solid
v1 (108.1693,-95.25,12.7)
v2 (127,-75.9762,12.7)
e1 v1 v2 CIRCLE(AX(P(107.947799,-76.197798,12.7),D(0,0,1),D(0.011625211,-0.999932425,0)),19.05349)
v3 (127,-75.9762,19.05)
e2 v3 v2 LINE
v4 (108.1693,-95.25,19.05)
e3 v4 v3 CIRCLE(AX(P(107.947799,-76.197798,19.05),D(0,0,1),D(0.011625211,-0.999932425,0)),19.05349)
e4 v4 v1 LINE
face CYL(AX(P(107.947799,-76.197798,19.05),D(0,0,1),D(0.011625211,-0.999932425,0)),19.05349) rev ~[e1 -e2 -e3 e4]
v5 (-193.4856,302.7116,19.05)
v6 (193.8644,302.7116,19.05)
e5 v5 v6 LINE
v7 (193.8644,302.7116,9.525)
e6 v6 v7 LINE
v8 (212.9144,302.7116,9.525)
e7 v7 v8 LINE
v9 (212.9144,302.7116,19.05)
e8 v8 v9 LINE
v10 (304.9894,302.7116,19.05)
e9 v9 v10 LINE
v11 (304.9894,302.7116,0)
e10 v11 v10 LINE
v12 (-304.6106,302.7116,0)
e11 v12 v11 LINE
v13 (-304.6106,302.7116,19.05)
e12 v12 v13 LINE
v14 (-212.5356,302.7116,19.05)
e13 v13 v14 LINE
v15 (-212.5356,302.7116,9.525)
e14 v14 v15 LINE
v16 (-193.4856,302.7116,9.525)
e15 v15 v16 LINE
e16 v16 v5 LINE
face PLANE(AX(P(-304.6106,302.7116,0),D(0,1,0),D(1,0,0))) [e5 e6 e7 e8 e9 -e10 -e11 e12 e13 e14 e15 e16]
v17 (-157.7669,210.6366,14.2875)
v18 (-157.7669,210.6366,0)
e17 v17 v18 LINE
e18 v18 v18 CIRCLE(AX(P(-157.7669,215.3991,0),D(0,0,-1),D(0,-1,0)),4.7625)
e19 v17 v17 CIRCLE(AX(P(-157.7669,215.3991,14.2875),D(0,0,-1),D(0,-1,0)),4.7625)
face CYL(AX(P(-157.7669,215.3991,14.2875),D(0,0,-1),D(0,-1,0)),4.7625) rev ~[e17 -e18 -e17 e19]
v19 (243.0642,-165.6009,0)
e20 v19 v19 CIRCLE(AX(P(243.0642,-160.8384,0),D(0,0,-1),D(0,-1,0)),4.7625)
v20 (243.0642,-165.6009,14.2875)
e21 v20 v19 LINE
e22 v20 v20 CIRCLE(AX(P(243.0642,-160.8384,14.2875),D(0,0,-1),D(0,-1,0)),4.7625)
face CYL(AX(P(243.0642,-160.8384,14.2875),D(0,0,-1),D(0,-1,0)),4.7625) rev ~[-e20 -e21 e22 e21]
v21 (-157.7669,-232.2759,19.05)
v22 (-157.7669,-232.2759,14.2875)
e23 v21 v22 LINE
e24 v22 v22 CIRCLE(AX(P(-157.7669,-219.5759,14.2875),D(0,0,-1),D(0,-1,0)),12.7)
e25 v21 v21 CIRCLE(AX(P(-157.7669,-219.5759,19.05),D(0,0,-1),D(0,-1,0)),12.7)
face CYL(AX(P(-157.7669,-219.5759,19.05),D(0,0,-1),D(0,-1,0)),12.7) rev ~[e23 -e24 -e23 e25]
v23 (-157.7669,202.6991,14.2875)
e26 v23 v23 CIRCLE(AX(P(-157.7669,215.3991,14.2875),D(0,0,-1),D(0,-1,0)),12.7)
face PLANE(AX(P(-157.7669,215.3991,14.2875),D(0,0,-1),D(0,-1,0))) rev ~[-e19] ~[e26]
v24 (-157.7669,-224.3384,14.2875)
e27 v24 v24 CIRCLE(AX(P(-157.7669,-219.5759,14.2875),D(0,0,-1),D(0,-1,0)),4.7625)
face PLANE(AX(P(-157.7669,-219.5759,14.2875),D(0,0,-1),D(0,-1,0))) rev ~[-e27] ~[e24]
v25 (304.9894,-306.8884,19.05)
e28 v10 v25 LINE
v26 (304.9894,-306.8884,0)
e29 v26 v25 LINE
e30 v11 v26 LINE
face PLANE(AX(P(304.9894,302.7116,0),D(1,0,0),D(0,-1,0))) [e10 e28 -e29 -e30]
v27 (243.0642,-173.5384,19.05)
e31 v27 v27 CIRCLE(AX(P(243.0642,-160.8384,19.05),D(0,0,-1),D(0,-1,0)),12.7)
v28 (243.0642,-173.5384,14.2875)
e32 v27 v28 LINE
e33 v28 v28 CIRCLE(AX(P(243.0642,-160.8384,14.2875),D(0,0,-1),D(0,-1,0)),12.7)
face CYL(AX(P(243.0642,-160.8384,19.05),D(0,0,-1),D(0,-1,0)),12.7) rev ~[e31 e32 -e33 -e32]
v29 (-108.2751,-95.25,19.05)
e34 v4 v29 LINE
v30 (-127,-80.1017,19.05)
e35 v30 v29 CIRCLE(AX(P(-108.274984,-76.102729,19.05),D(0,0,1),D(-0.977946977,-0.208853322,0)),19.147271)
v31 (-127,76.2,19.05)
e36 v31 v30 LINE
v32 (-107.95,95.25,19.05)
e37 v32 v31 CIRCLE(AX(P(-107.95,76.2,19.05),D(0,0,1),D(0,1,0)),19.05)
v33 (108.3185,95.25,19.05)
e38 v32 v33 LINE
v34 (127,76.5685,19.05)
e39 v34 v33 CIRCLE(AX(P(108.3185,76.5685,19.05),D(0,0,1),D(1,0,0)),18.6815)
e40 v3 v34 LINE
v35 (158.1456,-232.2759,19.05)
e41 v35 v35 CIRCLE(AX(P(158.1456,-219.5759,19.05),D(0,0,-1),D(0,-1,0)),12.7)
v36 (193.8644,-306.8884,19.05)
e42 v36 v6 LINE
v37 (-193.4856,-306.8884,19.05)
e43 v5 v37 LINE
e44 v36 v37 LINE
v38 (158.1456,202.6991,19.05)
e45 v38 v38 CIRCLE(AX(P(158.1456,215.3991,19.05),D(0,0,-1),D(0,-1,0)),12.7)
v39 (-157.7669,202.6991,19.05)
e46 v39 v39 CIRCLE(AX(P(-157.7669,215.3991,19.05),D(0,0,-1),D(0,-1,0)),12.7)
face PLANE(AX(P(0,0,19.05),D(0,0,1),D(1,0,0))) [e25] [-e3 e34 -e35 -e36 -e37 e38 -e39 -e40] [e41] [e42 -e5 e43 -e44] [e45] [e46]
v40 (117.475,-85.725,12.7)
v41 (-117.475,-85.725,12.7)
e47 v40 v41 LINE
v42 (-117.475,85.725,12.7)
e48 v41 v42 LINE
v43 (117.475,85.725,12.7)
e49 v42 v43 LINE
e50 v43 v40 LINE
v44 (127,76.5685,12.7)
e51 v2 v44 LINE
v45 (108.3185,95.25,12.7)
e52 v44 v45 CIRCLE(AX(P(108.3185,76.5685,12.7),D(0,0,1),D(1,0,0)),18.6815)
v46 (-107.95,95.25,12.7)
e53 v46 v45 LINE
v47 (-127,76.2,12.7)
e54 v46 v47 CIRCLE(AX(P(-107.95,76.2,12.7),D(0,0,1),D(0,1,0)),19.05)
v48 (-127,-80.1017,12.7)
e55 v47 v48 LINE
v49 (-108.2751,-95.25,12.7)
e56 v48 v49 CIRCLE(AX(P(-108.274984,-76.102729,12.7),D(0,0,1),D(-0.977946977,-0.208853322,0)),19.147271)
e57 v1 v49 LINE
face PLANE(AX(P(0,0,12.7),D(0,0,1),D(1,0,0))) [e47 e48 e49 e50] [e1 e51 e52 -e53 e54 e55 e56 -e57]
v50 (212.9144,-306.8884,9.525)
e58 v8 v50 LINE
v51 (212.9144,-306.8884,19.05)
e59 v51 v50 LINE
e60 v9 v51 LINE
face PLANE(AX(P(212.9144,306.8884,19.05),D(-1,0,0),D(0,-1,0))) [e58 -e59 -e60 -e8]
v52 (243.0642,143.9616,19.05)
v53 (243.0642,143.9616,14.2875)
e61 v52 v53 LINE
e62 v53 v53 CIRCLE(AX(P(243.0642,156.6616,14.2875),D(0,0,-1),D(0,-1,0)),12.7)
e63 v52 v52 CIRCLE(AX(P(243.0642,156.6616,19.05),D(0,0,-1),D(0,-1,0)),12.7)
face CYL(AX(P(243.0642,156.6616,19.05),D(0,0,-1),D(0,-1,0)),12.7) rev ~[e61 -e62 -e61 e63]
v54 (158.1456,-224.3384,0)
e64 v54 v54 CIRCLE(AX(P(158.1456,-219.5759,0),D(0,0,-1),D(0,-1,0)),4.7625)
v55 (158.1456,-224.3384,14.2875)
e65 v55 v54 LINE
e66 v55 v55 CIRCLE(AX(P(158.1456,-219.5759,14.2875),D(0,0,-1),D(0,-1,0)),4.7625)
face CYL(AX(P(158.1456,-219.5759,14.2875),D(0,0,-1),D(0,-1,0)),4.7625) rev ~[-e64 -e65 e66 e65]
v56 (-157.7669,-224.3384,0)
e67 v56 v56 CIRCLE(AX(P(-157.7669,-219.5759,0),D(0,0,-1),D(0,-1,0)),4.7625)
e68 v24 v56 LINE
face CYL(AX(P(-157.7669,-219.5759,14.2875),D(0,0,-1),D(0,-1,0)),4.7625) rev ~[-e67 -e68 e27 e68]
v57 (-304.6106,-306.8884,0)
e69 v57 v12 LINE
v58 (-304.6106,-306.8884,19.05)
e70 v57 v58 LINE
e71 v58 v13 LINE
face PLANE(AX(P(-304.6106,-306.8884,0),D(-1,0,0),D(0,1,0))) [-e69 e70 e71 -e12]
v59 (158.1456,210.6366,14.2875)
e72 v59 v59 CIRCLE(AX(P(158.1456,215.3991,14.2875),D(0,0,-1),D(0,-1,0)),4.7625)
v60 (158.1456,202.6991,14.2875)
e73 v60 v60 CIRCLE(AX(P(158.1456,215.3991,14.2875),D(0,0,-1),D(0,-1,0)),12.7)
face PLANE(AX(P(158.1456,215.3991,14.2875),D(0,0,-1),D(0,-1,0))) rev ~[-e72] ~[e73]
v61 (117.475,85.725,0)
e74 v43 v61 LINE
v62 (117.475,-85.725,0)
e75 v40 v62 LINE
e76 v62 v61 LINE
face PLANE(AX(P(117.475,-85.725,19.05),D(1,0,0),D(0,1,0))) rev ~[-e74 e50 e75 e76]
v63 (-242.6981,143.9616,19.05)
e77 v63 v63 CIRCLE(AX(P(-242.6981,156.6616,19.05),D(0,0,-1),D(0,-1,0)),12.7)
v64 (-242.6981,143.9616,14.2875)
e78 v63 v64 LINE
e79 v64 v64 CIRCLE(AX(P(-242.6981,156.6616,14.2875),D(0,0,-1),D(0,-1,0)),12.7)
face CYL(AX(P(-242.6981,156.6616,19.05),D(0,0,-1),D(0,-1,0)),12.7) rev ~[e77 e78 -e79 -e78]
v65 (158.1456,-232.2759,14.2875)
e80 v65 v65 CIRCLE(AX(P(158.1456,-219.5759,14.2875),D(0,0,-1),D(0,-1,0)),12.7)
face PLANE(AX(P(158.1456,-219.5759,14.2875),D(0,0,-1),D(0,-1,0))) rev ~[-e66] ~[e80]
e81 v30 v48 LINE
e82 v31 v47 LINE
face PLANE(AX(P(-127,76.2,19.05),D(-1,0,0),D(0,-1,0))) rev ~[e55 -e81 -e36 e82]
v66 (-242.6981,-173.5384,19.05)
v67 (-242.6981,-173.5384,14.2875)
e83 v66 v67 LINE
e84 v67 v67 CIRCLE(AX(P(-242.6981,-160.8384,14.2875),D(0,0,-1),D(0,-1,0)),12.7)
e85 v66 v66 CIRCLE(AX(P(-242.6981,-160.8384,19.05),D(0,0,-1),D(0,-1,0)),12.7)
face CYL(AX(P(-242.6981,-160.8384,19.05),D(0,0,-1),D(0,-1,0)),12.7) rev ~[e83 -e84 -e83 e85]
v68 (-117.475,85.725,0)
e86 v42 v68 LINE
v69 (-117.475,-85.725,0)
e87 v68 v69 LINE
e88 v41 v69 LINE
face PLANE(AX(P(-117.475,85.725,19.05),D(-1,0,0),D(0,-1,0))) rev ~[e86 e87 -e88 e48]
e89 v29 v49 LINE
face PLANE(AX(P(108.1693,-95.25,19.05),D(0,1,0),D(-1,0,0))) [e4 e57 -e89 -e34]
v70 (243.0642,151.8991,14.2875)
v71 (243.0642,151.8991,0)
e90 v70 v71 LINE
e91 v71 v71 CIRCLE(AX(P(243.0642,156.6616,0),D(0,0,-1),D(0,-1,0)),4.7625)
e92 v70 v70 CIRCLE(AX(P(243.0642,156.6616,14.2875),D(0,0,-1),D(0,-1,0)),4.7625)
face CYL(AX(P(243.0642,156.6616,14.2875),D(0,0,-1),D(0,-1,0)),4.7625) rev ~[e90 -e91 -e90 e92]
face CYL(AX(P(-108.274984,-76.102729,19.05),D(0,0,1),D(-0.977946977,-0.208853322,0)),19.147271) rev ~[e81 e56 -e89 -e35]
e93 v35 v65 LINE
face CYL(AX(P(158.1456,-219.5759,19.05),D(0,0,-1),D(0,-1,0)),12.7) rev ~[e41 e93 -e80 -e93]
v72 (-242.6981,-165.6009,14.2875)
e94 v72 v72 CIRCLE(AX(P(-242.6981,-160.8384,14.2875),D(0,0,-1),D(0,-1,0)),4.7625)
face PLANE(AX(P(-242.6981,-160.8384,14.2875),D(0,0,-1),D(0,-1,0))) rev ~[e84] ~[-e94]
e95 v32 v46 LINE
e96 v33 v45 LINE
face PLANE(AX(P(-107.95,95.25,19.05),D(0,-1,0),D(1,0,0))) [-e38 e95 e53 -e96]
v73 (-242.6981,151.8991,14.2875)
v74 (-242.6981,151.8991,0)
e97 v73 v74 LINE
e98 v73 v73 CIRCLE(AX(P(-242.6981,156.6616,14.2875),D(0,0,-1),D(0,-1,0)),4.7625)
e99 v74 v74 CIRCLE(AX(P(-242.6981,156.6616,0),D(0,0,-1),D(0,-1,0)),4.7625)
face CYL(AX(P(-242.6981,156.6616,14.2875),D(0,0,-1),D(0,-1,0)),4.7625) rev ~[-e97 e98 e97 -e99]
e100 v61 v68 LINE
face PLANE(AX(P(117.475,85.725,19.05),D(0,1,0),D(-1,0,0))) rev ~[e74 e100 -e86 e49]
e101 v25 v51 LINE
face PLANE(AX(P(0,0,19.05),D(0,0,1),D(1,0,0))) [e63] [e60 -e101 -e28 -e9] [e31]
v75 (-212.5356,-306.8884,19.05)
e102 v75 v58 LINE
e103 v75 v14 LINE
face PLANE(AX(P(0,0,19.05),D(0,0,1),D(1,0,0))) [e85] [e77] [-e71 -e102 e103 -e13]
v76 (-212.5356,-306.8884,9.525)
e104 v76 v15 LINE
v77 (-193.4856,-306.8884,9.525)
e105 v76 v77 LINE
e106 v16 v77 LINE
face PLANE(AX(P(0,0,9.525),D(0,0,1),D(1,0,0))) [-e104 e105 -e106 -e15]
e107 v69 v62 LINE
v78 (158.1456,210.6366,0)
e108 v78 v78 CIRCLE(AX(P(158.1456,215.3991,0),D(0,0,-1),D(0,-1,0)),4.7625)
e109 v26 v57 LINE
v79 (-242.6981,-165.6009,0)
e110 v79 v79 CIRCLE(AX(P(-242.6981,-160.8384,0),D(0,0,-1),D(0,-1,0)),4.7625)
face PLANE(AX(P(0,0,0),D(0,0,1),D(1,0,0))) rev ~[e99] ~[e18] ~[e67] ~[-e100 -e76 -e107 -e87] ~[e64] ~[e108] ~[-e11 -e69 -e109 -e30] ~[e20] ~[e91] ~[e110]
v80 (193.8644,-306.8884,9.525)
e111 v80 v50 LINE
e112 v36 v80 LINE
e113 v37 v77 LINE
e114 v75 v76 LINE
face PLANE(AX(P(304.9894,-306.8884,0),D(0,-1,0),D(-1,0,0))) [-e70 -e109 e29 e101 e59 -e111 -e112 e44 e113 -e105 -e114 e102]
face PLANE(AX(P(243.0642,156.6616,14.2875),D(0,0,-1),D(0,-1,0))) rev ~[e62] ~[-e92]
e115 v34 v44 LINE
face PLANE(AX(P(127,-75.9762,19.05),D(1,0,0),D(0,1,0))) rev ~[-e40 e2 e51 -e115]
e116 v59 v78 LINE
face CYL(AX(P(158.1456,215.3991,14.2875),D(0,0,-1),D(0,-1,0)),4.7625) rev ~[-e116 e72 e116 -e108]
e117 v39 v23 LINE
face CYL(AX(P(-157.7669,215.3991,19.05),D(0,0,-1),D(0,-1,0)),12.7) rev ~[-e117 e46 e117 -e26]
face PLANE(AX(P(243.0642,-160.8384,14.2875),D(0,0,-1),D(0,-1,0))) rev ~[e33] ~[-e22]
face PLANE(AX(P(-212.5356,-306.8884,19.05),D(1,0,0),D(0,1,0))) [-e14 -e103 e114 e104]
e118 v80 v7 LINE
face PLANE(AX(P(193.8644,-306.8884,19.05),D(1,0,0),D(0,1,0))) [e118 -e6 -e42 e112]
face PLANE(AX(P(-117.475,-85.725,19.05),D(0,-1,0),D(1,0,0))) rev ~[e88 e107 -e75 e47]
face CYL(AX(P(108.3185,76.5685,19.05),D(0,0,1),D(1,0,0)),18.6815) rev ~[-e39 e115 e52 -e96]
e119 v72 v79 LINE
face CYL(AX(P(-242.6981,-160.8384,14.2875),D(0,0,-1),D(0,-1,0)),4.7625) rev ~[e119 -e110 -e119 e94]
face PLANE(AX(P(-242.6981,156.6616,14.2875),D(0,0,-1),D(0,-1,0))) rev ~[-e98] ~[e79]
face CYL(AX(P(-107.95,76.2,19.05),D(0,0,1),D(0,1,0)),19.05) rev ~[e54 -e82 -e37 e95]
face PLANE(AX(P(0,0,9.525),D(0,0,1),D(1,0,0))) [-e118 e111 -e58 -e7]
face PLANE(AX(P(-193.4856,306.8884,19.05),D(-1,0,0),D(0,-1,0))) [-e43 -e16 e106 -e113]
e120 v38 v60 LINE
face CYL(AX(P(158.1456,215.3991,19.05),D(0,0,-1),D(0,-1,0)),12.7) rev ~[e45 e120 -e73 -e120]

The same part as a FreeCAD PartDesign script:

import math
import FreeCAD as App
import Part
import Sketcher
from FreeCAD import Vector
Q = App.Units.Quantity

doc = App.newDocument("Part")
params = doc.addObject("Spreadsheet::Sheet", "Params")
for row, (alias, value) in enumerate([
    ("sketch1_width", "24 in"),
    ("pad1_length", "0.75 in"),
    ("sketch2_diameter", "0.375 in"),
    ("hole_diameter", "0.375 in"),
    ("hole_cbore_diameter", "1 in"),
    ("hole_cbore_depth", "0.1875 in"),
    ("sketch3_width", "9.25 in"),
    ("sketch3_height", "6.75 in"),
    ("pocket1_length", "0.75 in"),
    ("sketch4_radius", "0.75 in"),
    ("pocket2_length", "0.25 in"),
    ("sketch5_width", "0.75 in"),
    ("pocket3_length", "0.375 in"),
], start=1):
    params.set(f"A{row}", alias)
    params.set(f"B{row}", "=" + value)
    params.setAlias(f"B{row}", alias)

body = doc.addObject("PartDesign::Body", "Body")

sketch1 = body.newObject("Sketcher::SketchObject", "Sketch")
sketch1.AttachmentSupport = (doc.getObject("XY_Plane"), [""])
sketch1.MapMode = "FlatFace"
sketch1.addGeometry([
    Part.LineSegment(Vector(305, 303, 0), Vector(-305, 303, 0)),
    Part.LineSegment(Vector(-305, 303, 0), Vector(-305, -307, 0)),
    Part.LineSegment(Vector(-305, -307, 0), Vector(305, -307, 0)),
    Part.LineSegment(Vector(305, -307, 0), Vector(305, 303, 0)),
], False)
sketch1.addConstraint([
    Sketcher.Constraint("Coincident", 0, 2, 1, 1),
    Sketcher.Constraint("Coincident", 1, 2, 2, 1),
    Sketcher.Constraint("Coincident", 2, 2, 3, 1),
    Sketcher.Constraint("Coincident", 3, 2, 0, 1),
    Sketcher.Constraint("Horizontal", 0),
    Sketcher.Constraint("Vertical", 1),
    Sketcher.Constraint("Horizontal", 2),
    Sketcher.Constraint("Vertical", 3),
    Sketcher.Constraint("Equal", 2, 1),
    Sketcher.Constraint("DistanceX", 0, 2, 0, 1, Q("24 in")),
    Sketcher.Constraint("DistanceX", 0, 2, -1, 1, Q("304.6106 mm")),
    Sketcher.Constraint("DistanceY", -1, 1, 0, 2, Q("302.7116 mm")),
])
sketch1.setExpression("Constraints[9]", "Params.sketch1_width")
pad1 = body.newObject("PartDesign::Pad", "Pad")
pad1.Profile = sketch1
pad1.setExpression("Length", "Params.pad1_length")

sketch2 = body.newObject("Sketcher::SketchObject", "Sketch001")
sketch2.AttachmentSupport = (doc.getObject("XY_Plane"), [""])
sketch2.MapMode = "FlatFace"
sketch2.AttachmentOffset = App.Placement(Vector(0, 0, 0.75 * 25.4), App.Rotation())
sketch2.addGeometry([
    Part.Circle(Vector(-242.7, -160.8, 0), Vector(0, 0, 1), 4.8),
    Part.Circle(Vector(-242.7, 156.7, 0), Vector(0, 0, 1), 4.8),
    Part.Circle(Vector(-157.8, 215.4, 0), Vector(0, 0, 1), 4.8),
    Part.Circle(Vector(158.1, 215.4, 0), Vector(0, 0, 1), 4.8),
    Part.Circle(Vector(243.1, 156.7, 0), Vector(0, 0, 1), 4.8),
    Part.Circle(Vector(243.1, -160.8, 0), Vector(0, 0, 1), 4.8),
    Part.Circle(Vector(158.1, -219.6, 0), Vector(0, 0, 1), 4.8),
    Part.Circle(Vector(-157.8, -219.6, 0), Vector(0, 0, 1), 4.8),
], False)
sketch2.addConstraint([
    Sketcher.Constraint("Equal", 0, 1),
    Sketcher.Constraint("Equal", 1, 2),
    Sketcher.Constraint("Equal", 2, 3),
    Sketcher.Constraint("Equal", 3, 4),
    Sketcher.Constraint("Equal", 4, 5),
    Sketcher.Constraint("Equal", 5, 6),
    Sketcher.Constraint("Equal", 6, 7),
    Sketcher.Constraint("Horizontal", 2, 3, 3, 3),
    Sketcher.Constraint("Horizontal", 1, 3, 4, 3),
    Sketcher.Constraint("Horizontal", 0, 3, 5, 3),
    Sketcher.Constraint("Horizontal", 6, 3, 7, 3),
    Sketcher.Constraint("Vertical", 0, 3, 1, 3),
    Sketcher.Constraint("Vertical", 4, 3, 5, 3),
    Sketcher.Constraint("Vertical", 3, 3, 6, 3),
    Sketcher.Constraint("Vertical", 2, 3, 7, 3),
    Sketcher.Constraint("Diameter", 0, Q("0.375 in")),
    Sketcher.Constraint("DistanceY", 0, 3, 1, 3, Q("12.5 in")),
    Sketcher.Constraint("DistanceX", 1, 3, 2, 3, Q("3.343748 in")),
    Sketcher.Constraint("DistanceY", 1, 3, 2, 3, Q("2.3125 in")),
    Sketcher.Constraint("DistanceX", 2, 3, 3, 3, Q("12.4375 in")),
    Sketcher.Constraint("DistanceY", 6, 3, 5, 3, Q("2.3125 in")),
    Sketcher.Constraint("DistanceX", 2, 3, -1, 1, Q("6.2113 in")),
    Sketcher.Constraint("DistanceX", 1, 3, 4, 3, Q("19.1245 in")),
    Sketcher.Constraint("DistanceY", 0, 3, -1, 1, Q("160.8384 mm")),
])
sketch2.setExpression("Constraints[15]", "Params.sketch2_diameter")
doc.recompute()
hole = body.newObject("PartDesign::Hole", "Hole")
hole.Profile = sketch2
hole.ThreadType = "None"
hole.setExpression("Diameter", "Params.hole_diameter")
hole.DepthType = "ThroughAll"
hole.HoleCutType = "Counterbore"
hole.setExpression("HoleCutDiameter", "Params.hole_cbore_diameter")
hole.setExpression("HoleCutDepth", "Params.hole_cbore_depth")

sketch3 = body.newObject("Sketcher::SketchObject", "Sketch002")
sketch3.AttachmentSupport = (doc.getObject("XY_Plane"), [""])
sketch3.MapMode = "FlatFace"
sketch3.AttachmentOffset = App.Placement(Vector(0, 0, 0.75 * 25.4), App.Rotation())
sketch3.addGeometry([
    Part.LineSegment(Vector(-117, 86, 0), Vector(-117, -86, 0)),
    Part.LineSegment(Vector(-117, -86, 0), Vector(117, -86, 0)),
    Part.LineSegment(Vector(117, -86, 0), Vector(117, 86, 0)),
    Part.LineSegment(Vector(117, 86, 0), Vector(-117, 86, 0)),
], False)
sketch3.addConstraint([
    Sketcher.Constraint("Coincident", 0, 2, 1, 1),
    Sketcher.Constraint("Coincident", 1, 2, 2, 1),
    Sketcher.Constraint("Coincident", 2, 2, 3, 1),
    Sketcher.Constraint("Coincident", 3, 2, 0, 1),
    Sketcher.Constraint("Vertical", 0),
    Sketcher.Constraint("Horizontal", 1),
    Sketcher.Constraint("Vertical", 2),
    Sketcher.Constraint("Horizontal", 3),
    Sketcher.Constraint("Symmetric", 0, 2, 2, 2, -1, 1),
    Sketcher.Constraint("DistanceX", 1, 1, 1, 2, Q("9.25 in")),
    Sketcher.Constraint("DistanceY", 0, 2, 0, 1, Q("6.75 in")),
])
sketch3.setExpression("Constraints[9]", "Params.sketch3_width")
sketch3.setExpression("Constraints[10]", "Params.sketch3_height")
pocket1 = body.newObject("PartDesign::Pocket", "Pocket")
pocket1.Profile = sketch3
pocket1.setExpression("Length", "Params.pocket1_length")

sketch4 = body.newObject("Sketcher::SketchObject", "Sketch003")
sketch4.AttachmentSupport = (doc.getObject("XY_Plane"), [""])
sketch4.MapMode = "FlatFace"
sketch4.AttachmentOffset = App.Placement(Vector(0, 0, 0.75 * 25.4), App.Rotation())
sketch4.addGeometry([
    Part.LineSegment(Vector(108, 95, 0), Vector(-108, 95, 0)),
    Part.ArcOfCircle(Part.Circle(Vector(-108, 76, 0), Vector(0, 0, 1), 19), math.radians(90), math.radians(180)),
    Part.LineSegment(Vector(-127, 76, 0), Vector(-127, -80, 0)),
    Part.ArcOfCircle(Part.Circle(Vector(-108, -76, 0), Vector(0, 0, 1), 19), math.radians(-168), math.radians(-90)),
    Part.LineSegment(Vector(-108, -95, 0), Vector(108, -95, 0)),
    Part.ArcOfCircle(Part.Circle(Vector(108, -76, 0), Vector(0, 0, 1), 19), math.radians(-89), math.radians(1)),
    Part.LineSegment(Vector(127, -76, 0), Vector(127, 77, 0)),
    Part.ArcOfCircle(Part.Circle(Vector(108, 77, 0), Vector(0, 0, 1), 19), math.radians(0), math.radians(90)),
    Part.LineSegment(Vector(-117, 86, 0), Vector(117, 86, 0)),
    Part.LineSegment(Vector(117, 86, 0), Vector(117, -86, 0)),
    Part.LineSegment(Vector(117, -86, 0), Vector(-117, -86, 0)),
    Part.LineSegment(Vector(-117, -86, 0), Vector(-117, 86, 0)),
], False)
sketch4.addConstraint([
    Sketcher.Constraint("Tangent", 0, 2, 1, 1),
    Sketcher.Constraint("Tangent", 1, 2, 2, 1),
    Sketcher.Constraint("Coincident", 2, 2, 3, 1),
    Sketcher.Constraint("Tangent", 3, 2, 4, 1),
    Sketcher.Constraint("Coincident", 4, 2, 5, 1),
    Sketcher.Constraint("Coincident", 5, 2, 6, 1),
    Sketcher.Constraint("Tangent", 6, 2, 7, 1),
    Sketcher.Constraint("Tangent", 7, 2, 0, 1),
    Sketcher.Constraint("Coincident", 8, 2, 9, 1),
    Sketcher.Constraint("Coincident", 9, 2, 10, 1),
    Sketcher.Constraint("Coincident", 10, 2, 11, 1),
    Sketcher.Constraint("Coincident", 11, 2, 8, 1),
    Sketcher.Constraint("Horizontal", 0),
    Sketcher.Constraint("Vertical", 2),
    Sketcher.Constraint("Horizontal", 4),
    Sketcher.Constraint("Vertical", 6),
    Sketcher.Constraint("Horizontal", 8),
    Sketcher.Constraint("Vertical", 9),
    Sketcher.Constraint("Horizontal", 10),
    Sketcher.Constraint("Vertical", 11),
    Sketcher.Constraint("Symmetric", 8, 2, 10, 2, -1, 1),
    Sketcher.Constraint("Radius", 1, Q("0.75 in")),
    Sketcher.Constraint("DistanceY", -1, 1, 1, 3, Q("3 in")),
    Sketcher.Constraint("DistanceX", 1, 2, -1, 1, Q("5 in")),
    Sketcher.Constraint("DistanceX", -1, 1, 5, 2, Q("5 in")),
    Sketcher.Constraint("DistanceX", 8, 2, 6, 2, Q("0.375 in")),
    Sketcher.Constraint("DistanceY", 8, 2, 7, 2, Q("0.375 in")),
    Sketcher.Constraint("DistanceY", 4, 2, 9, 2, Q("0.375 in")),
    Sketcher.Constraint("Radius", 7, Q("0.7355 in")),
    Sketcher.Constraint("Radius", 3, Q("19.1471 mm")),
    Sketcher.Constraint("Radius", 5, Q("19.0535 mm")),
    Sketcher.Constraint("DistanceY", 2, 2, 2, 1, Q("6.1536 in")),
    Sketcher.Constraint("DistanceY", 6, 1, 6, 2, Q("6.0057 in")),
    Sketcher.Constraint("DistanceX", 4, 1, 4, 2, Q("216.4444 mm")),
])
sketch4.setExpression("Constraints[21]", "Params.sketch4_radius")
pocket2 = body.newObject("PartDesign::Pocket", "Pocket001")
pocket2.Profile = sketch4
pocket2.setExpression("Length", "Params.pocket2_length")

sketch5 = body.newObject("Sketcher::SketchObject", "Sketch004")
sketch5.AttachmentSupport = (doc.getObject("XY_Plane"), [""])
sketch5.MapMode = "FlatFace"
sketch5.AttachmentOffset = App.Placement(Vector(0, 0, 0.75 * 25.4), App.Rotation())
sketch5.addGeometry([
    Part.LineSegment(Vector(-213, 307, 0), Vector(-213, -307, 0)),
    Part.LineSegment(Vector(-213, -307, 0), Vector(-193, -307, 0)),
    Part.LineSegment(Vector(-193, -307, 0), Vector(-193, 307, 0)),
    Part.LineSegment(Vector(-193, 307, 0), Vector(-213, 307, 0)),
    Part.LineSegment(Vector(194, 307, 0), Vector(194, -307, 0)),
    Part.LineSegment(Vector(194, -307, 0), Vector(213, -307, 0)),
    Part.LineSegment(Vector(213, -307, 0), Vector(213, 307, 0)),
    Part.LineSegment(Vector(213, 307, 0), Vector(194, 307, 0)),
], False)
sketch5.addConstraint([
    Sketcher.Constraint("Coincident", 0, 2, 1, 1),
    Sketcher.Constraint("Coincident", 1, 2, 2, 1),
    Sketcher.Constraint("Coincident", 2, 2, 3, 1),
    Sketcher.Constraint("Coincident", 3, 2, 0, 1),
    Sketcher.Constraint("Coincident", 4, 2, 5, 1),
    Sketcher.Constraint("Coincident", 5, 2, 6, 1),
    Sketcher.Constraint("Coincident", 6, 2, 7, 1),
    Sketcher.Constraint("Coincident", 7, 2, 4, 1),
    Sketcher.Constraint("Vertical", 0),
    Sketcher.Constraint("Horizontal", 1),
    Sketcher.Constraint("Vertical", 2),
    Sketcher.Constraint("Horizontal", 3),
    Sketcher.Constraint("Vertical", 4),
    Sketcher.Constraint("Horizontal", 5),
    Sketcher.Constraint("Vertical", 6),
    Sketcher.Constraint("Horizontal", 7),
    Sketcher.Constraint("Horizontal", 1, 2, 4, 2),
    Sketcher.Constraint("Horizontal", 3, 2, 6, 2),
    Sketcher.Constraint("Equal", 3, 5),
    Sketcher.Constraint("DistanceX", 1, 1, 1, 2, Q("0.75 in")),
    Sketcher.Constraint("DistanceX", 0, 2, 4, 2, Q("16 in")),
    Sketcher.Constraint("DistanceY", 0, 2, 0, 1, Q("613.7768 mm")),
    Sketcher.Constraint("DistanceX", 0, 2, -1, 1, Q("212.5356 mm")),
    Sketcher.Constraint("DistanceY", 0, 2, -1, 1, Q("306.8884 mm")),
])
sketch5.setExpression("Constraints[19]", "Params.sketch5_width")
pocket3 = body.newObject("PartDesign::Pocket", "Pocket002")
pocket3.Profile = sketch5
pocket3.setExpression("Length", "Params.pocket3_length")

doc.recompute()
